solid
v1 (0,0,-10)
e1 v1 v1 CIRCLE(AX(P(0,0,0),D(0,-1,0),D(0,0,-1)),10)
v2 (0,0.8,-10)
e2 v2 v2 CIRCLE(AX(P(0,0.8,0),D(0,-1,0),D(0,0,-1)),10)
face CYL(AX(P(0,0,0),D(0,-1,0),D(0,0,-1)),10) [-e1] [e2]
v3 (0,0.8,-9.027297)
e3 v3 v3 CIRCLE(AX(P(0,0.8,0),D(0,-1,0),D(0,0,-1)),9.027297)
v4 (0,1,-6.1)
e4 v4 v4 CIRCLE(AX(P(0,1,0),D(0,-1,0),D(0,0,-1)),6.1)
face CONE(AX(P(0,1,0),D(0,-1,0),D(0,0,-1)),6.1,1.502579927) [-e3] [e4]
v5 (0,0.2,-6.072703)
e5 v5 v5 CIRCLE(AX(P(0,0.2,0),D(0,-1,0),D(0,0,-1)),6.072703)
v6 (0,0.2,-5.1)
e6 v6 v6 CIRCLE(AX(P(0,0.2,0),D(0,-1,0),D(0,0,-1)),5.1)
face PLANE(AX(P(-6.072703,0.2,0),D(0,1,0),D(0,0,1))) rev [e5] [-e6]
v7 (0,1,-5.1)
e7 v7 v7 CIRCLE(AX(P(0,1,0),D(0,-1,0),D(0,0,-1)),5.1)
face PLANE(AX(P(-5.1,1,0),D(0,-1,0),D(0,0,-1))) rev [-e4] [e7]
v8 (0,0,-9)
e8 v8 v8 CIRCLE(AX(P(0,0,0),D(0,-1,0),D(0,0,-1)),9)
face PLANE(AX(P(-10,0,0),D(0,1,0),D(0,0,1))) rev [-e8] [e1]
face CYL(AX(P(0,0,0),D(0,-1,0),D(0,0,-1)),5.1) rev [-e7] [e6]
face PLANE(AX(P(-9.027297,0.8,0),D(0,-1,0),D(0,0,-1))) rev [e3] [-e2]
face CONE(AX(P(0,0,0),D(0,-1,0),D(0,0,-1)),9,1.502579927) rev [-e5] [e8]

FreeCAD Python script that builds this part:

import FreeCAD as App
import Part
import Sketcher

doc = App.newDocument("Part")
body = doc.addObject("PartDesign::Body", "Body")

sketch1 = body.newObject("Sketcher::SketchObject", "Sketch")
sketch1.AttachmentSupport = (doc.getObject("XY_Plane"), [""])
sketch1.MapMode = "FlatFace"
sketch1.addGeometry(Part.LineSegment(App.Vector(-10, 0, 0), App.Vector(-9, 0, 0)), False)
sketch1.addGeometry(Part.LineSegment(App.Vector(-9, 0, 0), App.Vector(-6.072703, 0.2, 0)), False)
sketch1.addGeometry(Part.LineSegment(App.Vector(-6.072703, 0.2, 0), App.Vector(-5.1, 0.2, 0)), False)
sketch1.addGeometry(Part.LineSegment(App.Vector(-5.1, 0.2, 0), App.Vector(-5.1, 1, 0)), False)
sketch1.addGeometry(Part.LineSegment(App.Vector(-5.1, 1, 0), App.Vector(-6.1, 1, 0)), False)
sketch1.addGeometry(Part.LineSegment(App.Vector(-6.1, 1, 0), App.Vector(-9.027297, 0.8, 0)), False)
sketch1.addGeometry(Part.LineSegment(App.Vector(-9.027297, 0.8, 0), App.Vector(-10, 0.8, 0)), False)
sketch1.addGeometry(Part.LineSegment(App.Vector(-10, 0.8, 0), App.Vector(-10, 0, 0)), False)
sketch1.addConstraint(Sketcher.Constraint("Coincident", 0, 2, 1, 1))
sketch1.addConstraint(Sketcher.Constraint("Coincident", 1, 2, 2, 1))
sketch1.addConstraint(Sketcher.Constraint("Coincident", 2, 2, 3, 1))
sketch1.addConstraint(Sketcher.Constraint("Coincident", 3, 2, 4, 1))
sketch1.addConstraint(Sketcher.Constraint("Coincident", 4, 2, 5, 1))
sketch1.addConstraint(Sketcher.Constraint("Coincident", 5, 2, 6, 1))
sketch1.addConstraint(Sketcher.Constraint("Coincident", 6, 2, 7, 1))
sketch1.addConstraint(Sketcher.Constraint("Coincident", 7, 2, 0, 1))
sketch1.addConstraint(Sketcher.Constraint("Horizontal", 0))
sketch1.addConstraint(Sketcher.Constraint("Horizontal", 2))
sketch1.addConstraint(Sketcher.Constraint("Vertical", 3))
sketch1.addConstraint(Sketcher.Constraint("Horizontal", 4))
sketch1.addConstraint(Sketcher.Constraint("Horizontal", 6))
sketch1.addConstraint(Sketcher.Constraint("Vertical", 7))
sketch1.addConstraint(Sketcher.Constraint("PointOnObject", 0, 2, -1))
sketch1.addConstraint(Sketcher.Constraint("Parallel", 1, 5))
sketch1.addConstraint(Sketcher.Constraint("Equal", 0, 4))
sketch1.addConstraint(Sketcher.Constraint("Equal", 2, 6))
sketch1.addConstraint(Sketcher.Constraint("DistanceX", 0, 1, 0, 2, 1.0))
sketch1.addConstraint(Sketcher.Constraint("DistanceY", 3, 1, 3, 2, 0.8))
sketch1.addConstraint(Sketcher.Constraint("DistanceX", 0, 2, -1, 1, 9.0))
sketch1.addConstraint(Sketcher.Constraint("DistanceY", -1, 1, 3, 2, 1.0))
sketch1.addConstraint(Sketcher.Constraint("DistanceX", 2, 2, -1, 1, 5.1))
sketch1.addConstraint(Sketcher.Constraint("Distance", 1, 2.934121))
revolution = body.newObject("PartDesign::Revolution", "Revolution")
revolution.Profile = sketch1
revolution.ReferenceAxis = (sketch1, ["V_Axis"])
revolution.Angle = 360

doc.recompute()
